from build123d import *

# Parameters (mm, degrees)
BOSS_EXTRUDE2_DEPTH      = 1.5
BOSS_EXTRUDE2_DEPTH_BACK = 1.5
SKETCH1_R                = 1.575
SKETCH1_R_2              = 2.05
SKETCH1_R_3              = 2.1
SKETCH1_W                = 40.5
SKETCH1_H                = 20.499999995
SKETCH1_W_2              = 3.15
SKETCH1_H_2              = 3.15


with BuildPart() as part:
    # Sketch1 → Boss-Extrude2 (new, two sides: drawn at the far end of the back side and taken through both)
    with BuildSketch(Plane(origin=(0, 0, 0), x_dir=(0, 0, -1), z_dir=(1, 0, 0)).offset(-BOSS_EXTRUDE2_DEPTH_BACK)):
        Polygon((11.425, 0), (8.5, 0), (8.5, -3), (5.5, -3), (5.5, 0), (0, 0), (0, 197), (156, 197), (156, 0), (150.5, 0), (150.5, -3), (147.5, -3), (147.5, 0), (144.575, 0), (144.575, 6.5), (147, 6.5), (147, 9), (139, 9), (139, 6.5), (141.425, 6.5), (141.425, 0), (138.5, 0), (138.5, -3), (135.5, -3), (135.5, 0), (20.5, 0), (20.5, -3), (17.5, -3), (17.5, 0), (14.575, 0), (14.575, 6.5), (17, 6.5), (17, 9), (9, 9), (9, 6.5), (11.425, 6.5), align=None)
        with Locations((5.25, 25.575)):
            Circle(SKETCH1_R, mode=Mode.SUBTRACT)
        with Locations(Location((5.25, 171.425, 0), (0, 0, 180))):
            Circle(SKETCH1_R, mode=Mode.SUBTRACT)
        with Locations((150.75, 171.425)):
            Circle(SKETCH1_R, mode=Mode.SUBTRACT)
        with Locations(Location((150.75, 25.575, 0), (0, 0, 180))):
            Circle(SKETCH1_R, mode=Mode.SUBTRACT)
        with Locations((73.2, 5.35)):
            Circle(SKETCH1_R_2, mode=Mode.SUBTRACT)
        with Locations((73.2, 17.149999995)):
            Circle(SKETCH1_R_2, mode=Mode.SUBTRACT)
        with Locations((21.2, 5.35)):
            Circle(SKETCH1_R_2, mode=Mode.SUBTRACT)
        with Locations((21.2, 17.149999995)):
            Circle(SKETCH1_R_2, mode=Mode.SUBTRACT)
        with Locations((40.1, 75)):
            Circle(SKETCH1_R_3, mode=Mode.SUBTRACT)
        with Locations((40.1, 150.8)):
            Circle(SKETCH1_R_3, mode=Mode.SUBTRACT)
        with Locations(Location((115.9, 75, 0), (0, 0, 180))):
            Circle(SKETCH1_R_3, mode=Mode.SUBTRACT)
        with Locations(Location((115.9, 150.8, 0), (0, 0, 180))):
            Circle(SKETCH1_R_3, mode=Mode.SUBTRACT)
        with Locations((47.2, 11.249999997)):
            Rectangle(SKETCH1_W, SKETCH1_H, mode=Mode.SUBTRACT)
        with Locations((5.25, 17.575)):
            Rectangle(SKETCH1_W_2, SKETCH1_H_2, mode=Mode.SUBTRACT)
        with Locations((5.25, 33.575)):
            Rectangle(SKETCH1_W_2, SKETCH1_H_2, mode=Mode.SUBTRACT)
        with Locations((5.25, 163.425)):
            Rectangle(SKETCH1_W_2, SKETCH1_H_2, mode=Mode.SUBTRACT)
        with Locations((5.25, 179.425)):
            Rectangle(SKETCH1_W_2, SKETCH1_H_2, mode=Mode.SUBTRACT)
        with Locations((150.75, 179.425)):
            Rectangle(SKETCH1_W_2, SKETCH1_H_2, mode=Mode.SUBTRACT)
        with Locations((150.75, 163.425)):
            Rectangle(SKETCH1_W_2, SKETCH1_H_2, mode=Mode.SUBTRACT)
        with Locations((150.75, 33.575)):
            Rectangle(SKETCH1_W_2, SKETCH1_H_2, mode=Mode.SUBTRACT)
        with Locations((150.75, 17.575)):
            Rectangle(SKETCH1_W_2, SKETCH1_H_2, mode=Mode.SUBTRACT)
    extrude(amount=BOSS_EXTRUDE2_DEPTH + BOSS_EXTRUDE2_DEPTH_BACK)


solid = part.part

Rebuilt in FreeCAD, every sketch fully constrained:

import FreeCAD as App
import Part
import Sketcher

V = App.Vector

doc = App.newDocument("Part")
body = doc.addObject("PartDesign::Body", "Body")

# Sketch on YZ plane
sketch1 = doc.addObject("Sketcher::SketchObject", "Sketch")
body.addObject(sketch1)
sketch1.AttachmentSupport = (doc.YZ_Plane, [""])
sketch1.MapMode = "FlatFace"
sketch1.addGeometry([
    Part.LineSegment(V(0, -8.5, 0), V(0, -11.425, 0)),  # 0
    Part.LineSegment(V(0, -11.425, 0), V(6.5, -11.425, 0)),  # 1
    Part.LineSegment(V(6.5, -11.425, 0), V(6.5, -9, 0)),  # 2
    Part.LineSegment(V(6.5, -9, 0), V(9, -9, 0)),  # 3
    Part.LineSegment(V(9, -9, 0), V(9, -17, 0)),  # 4
    Part.LineSegment(V(9, -17, 0), V(6.5, -17, 0)),  # 5
    Part.LineSegment(V(6.5, -17, 0), V(6.5, -14.575, 0)),  # 6
    Part.LineSegment(V(6.5, -14.575, 0), V(0, -14.575, 0)),  # 7
    Part.LineSegment(V(0, -14.575, 0), V(0, -17.5, 0)),  # 8
    Part.LineSegment(V(0, -17.5, 0), V(-3, -17.5, 0)),  # 9
    Part.LineSegment(V(-3, -17.5, 0), V(-3, -20.5, 0)),  # 10
    Part.LineSegment(V(-3, -20.5, 0), V(0, -20.5, 0)),  # 11
    Part.LineSegment(V(0, -20.5, 0), V(0, -135.5, 0)),  # 12
    Part.LineSegment(V(0, -135.5, 0), V(-3, -135.5, 0)),  # 13
    Part.LineSegment(V(-3, -135.5, 0), V(-3, -138.5, 0)),  # 14
    Part.LineSegment(V(-3, -138.5, 0), V(0, -138.5, 0)),  # 15
    Part.LineSegment(V(0, -138.5, 0), V(0, -141.425, 0)),  # 16
    Part.LineSegment(V(0, -141.425, 0), V(6.5, -141.425, 0)),  # 17
    Part.LineSegment(V(6.5, -141.425, 0), V(6.5, -139, 0)),  # 18
    Part.LineSegment(V(6.5, -139, 0), V(9, -139, 0)),  # 19
    Part.LineSegment(V(9, -139, 0), V(9, -147, 0)),  # 20
    Part.LineSegment(V(9, -147, 0), V(6.5, -147, 0)),  # 21
    Part.LineSegment(V(6.5, -147, 0), V(6.5, -144.575, 0)),  # 22
    Part.LineSegment(V(6.5, -144.575, 0), V(0, -144.575, 0)),  # 23
    Part.LineSegment(V(0, -144.575, 0), V(0, -147.5, 0)),  # 24
    Part.LineSegment(V(0, -147.5, 0), V(-3, -147.5, 0)),  # 25
    Part.LineSegment(V(-3, -147.5, 0), V(-3, -150.5, 0)),  # 26
    Part.LineSegment(V(-3, -150.5, 0), V(0, -150.5, 0)),  # 27
    Part.LineSegment(V(0, -150.5, 0), V(0, -156, 0)),  # 28
    Part.LineSegment(V(0, -156, 0), V(197, -156, 0)),  # 29
    Part.LineSegment(V(197, -156, 0), V(197, 0, 0)),  # 30
    Part.LineSegment(V(197, 0, 0), V(0, 0, 0)),  # 31
    Part.LineSegment(V(0, 0, 0), V(0, -5.5, 0)),  # 32
    Part.LineSegment(V(0, -5.5, 0), V(-3, -5.5, 0)),  # 33
    Part.LineSegment(V(-3, -5.5, 0), V(-3, -8.5, 0)),  # 34
    Part.LineSegment(V(-3, -8.5, 0), V(0, -8.5, 0)),  # 35
    Part.LineSegment(V(16, -149.175, 0), V(19.15, -149.175, 0)),  # 36
    Part.LineSegment(V(19.15, -149.175, 0), V(19.15, -152.325, 0)),  # 37
    Part.LineSegment(V(19.15, -152.325, 0), V(16, -152.325, 0)),  # 38
    Part.LineSegment(V(16, -152.325, 0), V(16, -149.175, 0)),  # 39
    Part.Circle(V(25.575, -150.75, 0), V(0, 0, 1), 1.575),  # 40
    Part.LineSegment(V(32, -149.175, 0), V(35.15, -149.175, 0)),  # 41
    Part.LineSegment(V(35.15, -149.175, 0), V(35.15, -152.325, 0)),  # 42
    Part.LineSegment(V(35.15, -152.325, 0), V(32, -152.325, 0)),  # 43
    Part.LineSegment(V(32, -152.325, 0), V(32, -149.175, 0)),  # 44
    Part.Circle(V(75, -115.9, 0), V(0, 0, 1), 2.1),  # 45
    Part.Circle(V(5.35, -73.2, 0), V(0, 0, 1), 2.05),  # 46
    Part.Circle(V(17.15, -73.2, 0), V(0, 0, 1), 2.05),  # 47
    Part.LineSegment(V(1, -26.95, 0), V(21.5, -26.95, 0)),  # 48
    Part.LineSegment(V(21.5, -26.95, 0), V(21.5, -67.45, 0)),  # 49
    Part.LineSegment(V(21.5, -67.45, 0), V(1, -67.45, 0)),  # 50
    Part.LineSegment(V(1, -67.45, 0), V(1, -26.95, 0)),  # 51
    Part.Circle(V(5.35, -21.2, 0), V(0, 0, 1), 2.05),  # 52
    Part.Circle(V(17.15, -21.2, 0), V(0, 0, 1), 2.05),  # 53
    Part.LineSegment(V(16, -3.675, 0), V(19.15, -3.675, 0)),  # 54
    Part.LineSegment(V(19.15, -3.675, 0), V(19.15, -6.825, 0)),  # 55
    Part.LineSegment(V(19.15, -6.825, 0), V(16, -6.825, 0)),  # 56
    Part.LineSegment(V(16, -6.825, 0), V(16, -3.675, 0)),  # 57
    Part.Circle(V(25.575, -5.25, 0), V(0, 0, 1), 1.575),  # 58
    Part.LineSegment(V(32, -3.675, 0), V(35.15, -3.675, 0)),  # 59
    Part.LineSegment(V(35.15, -3.675, 0), V(35.15, -6.825, 0)),  # 60
    Part.LineSegment(V(35.15, -6.825, 0), V(32, -6.825, 0)),  # 61
    Part.LineSegment(V(32, -6.825, 0), V(32, -3.675, 0)),  # 62
    Part.Circle(V(75, -40.1, 0), V(0, 0, 1), 2.1),  # 63
    Part.Circle(V(150.8, -115.9, 0), V(0, 0, 1), 2.1),  # 64
    Part.LineSegment(V(161.85, -149.175, 0), V(165, -149.175, 0)),  # 65
    Part.LineSegment(V(165, -149.175, 0), V(165, -152.325, 0)),  # 66
    Part.LineSegment(V(165, -152.325, 0), V(161.85, -152.325, 0)),  # 67
    Part.LineSegment(V(161.85, -152.325, 0), V(161.85, -149.175, 0)),  # 68
    Part.Circle(V(171.425, -150.75, 0), V(0, 0, 1), 1.575),  # 69
    Part.LineSegment(V(177.85, -149.175, 0), V(181, -149.175, 0)),  # 70
    Part.LineSegment(V(181, -149.175, 0), V(181, -152.325, 0)),  # 71
    Part.LineSegment(V(181, -152.325, 0), V(177.85, -152.325, 0)),  # 72
    Part.LineSegment(V(177.85, -152.325, 0), V(177.85, -149.175, 0)),  # 73
    Part.Circle(V(150.8, -40.1, 0), V(0, 0, 1), 2.1),  # 74
    Part.LineSegment(V(161.85, -3.675, 0), V(165, -3.675, 0)),  # 75
    Part.LineSegment(V(165, -3.675, 0), V(165, -6.825, 0)),  # 76
    Part.LineSegment(V(165, -6.825, 0), V(161.85, -6.825, 0)),  # 77
    Part.LineSegment(V(161.85, -6.825, 0), V(161.85, -3.675, 0)),  # 78
    Part.Circle(V(171.425, -5.25, 0), V(0, 0, 1), 1.575),  # 79
    Part.LineSegment(V(177.85, -3.675, 0), V(181, -3.675, 0)),  # 80
    Part.LineSegment(V(181, -3.675, 0), V(181, -6.825, 0)),  # 81
    Part.LineSegment(V(181, -6.825, 0), V(177.85, -6.825, 0)),  # 82
    Part.LineSegment(V(177.85, -6.825, 0), V(177.85, -3.675, 0)),  # 83
], False)
sketch1.addConstraint([
    Sketcher.Constraint("Coincident", 0, 2, 1, 1),
    Sketcher.Constraint("Coincident", 1, 2, 2, 1),
    Sketcher.Constraint("Coincident", 2, 2, 3, 1),
    Sketcher.Constraint("Coincident", 3, 2, 4, 1),
    Sketcher.Constraint("Coincident", 4, 2, 5, 1),
    Sketcher.Constraint("Coincident", 5, 2, 6, 1),
    Sketcher.Constraint("Coincident", 6, 2, 7, 1),
    Sketcher.Constraint("Coincident", 7, 2, 8, 1),
    Sketcher.Constraint("Coincident", 8, 2, 9, 1),
    Sketcher.Constraint("Coincident", 9, 2, 10, 1),
    Sketcher.Constraint("Coincident", 10, 2, 11, 1),
    Sketcher.Constraint("Coincident", 11, 2, 12, 1),
    Sketcher.Constraint("Coincident", 12, 2, 13, 1),
    Sketcher.Constraint("Coincident", 13, 2, 14, 1),
    Sketcher.Constraint("Coincident", 14, 2, 15, 1),
    Sketcher.Constraint("Coincident", 15, 2, 16, 1),
    Sketcher.Constraint("Coincident", 16, 2, 17, 1),
    Sketcher.Constraint("Coincident", 17, 2, 18, 1),
    Sketcher.Constraint("Coincident", 18, 2, 19, 1),
    Sketcher.Constraint("Coincident", 19, 2, 20, 1),
    Sketcher.Constraint("Coincident", 20, 2, 21, 1),
    Sketcher.Constraint("Coincident", 21, 2, 22, 1),
    Sketcher.Constraint("Coincident", 22, 2, 23, 1),
    Sketcher.Constraint("Coincident", 23, 2, 24, 1),
    Sketcher.Constraint("Coincident", 24, 2, 25, 1),
    Sketcher.Constraint("Coincident", 25, 2, 26, 1),
    Sketcher.Constraint("Coincident", 26, 2, 27, 1),
    Sketcher.Constraint("Coincident", 27, 2, 28, 1),
    Sketcher.Constraint("Coincident", 28, 2, 29, 1),
    Sketcher.Constraint("Coincident", 29, 2, 30, 1),
    Sketcher.Constraint("Coincident", 30, 2, 31, 1),
    Sketcher.Constraint("Coincident", 31, 2, 32, 1),
    Sketcher.Constraint("Coincident", 32, 2, 33, 1),
    Sketcher.Constraint("Coincident", 33, 2, 34, 1),
    Sketcher.Constraint("Coincident", 34, 2, 35, 1),
    Sketcher.Constraint("Coincident", 35, 2, 0, 1),
    Sketcher.Constraint("Coincident", 36, 2, 37, 1),
    Sketcher.Constraint("Coincident", 37, 2, 38, 1),
    Sketcher.Constraint("Coincident", 38, 2, 39, 1),
    Sketcher.Constraint("Coincident", 39, 2, 36, 1),
    Sketcher.Constraint("Coincident", 41, 2, 42, 1),
    Sketcher.Constraint("Coincident", 42, 2, 43, 1),
    Sketcher.Constraint("Coincident", 43, 2, 44, 1),
    Sketcher.Constraint("Coincident", 44, 2, 41, 1),
    Sketcher.Constraint("Coincident", 48, 2, 49, 1),
    Sketcher.Constraint("Coincident", 49, 2, 50, 1),
    Sketcher.Constraint("Coincident", 50, 2, 51, 1),
    Sketcher.Constraint("Coincident", 51, 2, 48, 1),
    Sketcher.Constraint("Coincident", 54, 2, 55, 1),
    Sketcher.Constraint("Coincident", 55, 2, 56, 1),
    Sketcher.Constraint("Coincident", 56, 2, 57, 1),
    Sketcher.Constraint("Coincident", 57, 2, 54, 1),
    Sketcher.Constraint("Coincident", 59, 2, 60, 1),
    Sketcher.Constraint("Coincident", 60, 2, 61, 1),
    Sketcher.Constraint("Coincident", 61, 2, 62, 1),
    Sketcher.Constraint("Coincident", 62, 2, 59, 1),
    Sketcher.Constraint("Coincident", 65, 2, 66, 1),
    Sketcher.Constraint("Coincident", 66, 2, 67, 1),
    Sketcher.Constraint("Coincident", 67, 2, 68, 1),
    Sketcher.Constraint("Coincident", 68, 2, 65, 1),
    Sketcher.Constraint("Coincident", 70, 2, 71, 1),
    Sketcher.Constraint("Coincident", 71, 2, 72, 1),
    Sketcher.Constraint("Coincident", 72, 2, 73, 1),
    Sketcher.Constraint("Coincident", 73, 2, 70, 1),
    Sketcher.Constraint("Coincident", 75, 2, 76, 1),
    Sketcher.Constraint("Coincident", 76, 2, 77, 1),
    Sketcher.Constraint("Coincident", 77, 2, 78, 1),
    Sketcher.Constraint("Coincident", 78, 2, 75, 1),
    Sketcher.Constraint("Coincident", 80, 2, 81, 1),
    Sketcher.Constraint("Coincident", 81, 2, 82, 1),
    Sketcher.Constraint("Coincident", 82, 2, 83, 1),
    Sketcher.Constraint("Coincident", 83, 2, 80, 1),
    Sketcher.Constraint("Vertical", 0),
    Sketcher.Constraint("Horizontal", 1),
    Sketcher.Constraint("Vertical", 2),
    Sketcher.Constraint("Horizontal", 3),
    Sketcher.Constraint("Vertical", 4),
    Sketcher.Constraint("Horizontal", 5),
    Sketcher.Constraint("Vertical", 6),
    Sketcher.Constraint("Horizontal", 7),
    Sketcher.Constraint("Vertical", 8),
    Sketcher.Constraint("Horizontal", 9),
    Sketcher.Constraint("Vertical", 10),
    Sketcher.Constraint("Horizontal", 11),
    Sketcher.Constraint("Vertical", 12),
    Sketcher.Constraint("Horizontal", 13),
    Sketcher.Constraint("Vertical", 14),
    Sketcher.Constraint("Horizontal", 15),
    Sketcher.Constraint("Vertical", 16),
    Sketcher.Constraint("Horizontal", 17),
    Sketcher.Constraint("Vertical", 18),
    Sketcher.Constraint("Horizontal", 19),
    Sketcher.Constraint("Vertical", 20),
    Sketcher.Constraint("Horizontal", 21),
    Sketcher.Constraint("Vertical", 22),
    Sketcher.Constraint("Horizontal", 23),
    Sketcher.Constraint("Vertical", 24),
    Sketcher.Constraint("Horizontal", 25),
    Sketcher.Constraint("Vertical", 26),
    Sketcher.Constraint("Horizontal", 27),
    Sketcher.Constraint("Vertical", 28),
    Sketcher.Constraint("Horizontal", 29),
    Sketcher.Constraint("Vertical", 30),
    Sketcher.Constraint("Horizontal", 31),
    Sketcher.Constraint("Vertical", 32),
    Sketcher.Constraint("Horizontal", 33),
    Sketcher.Constraint("Vertical", 34),
    Sketcher.Constraint("Horizontal", 35),
    Sketcher.Constraint("Horizontal", 36),
    Sketcher.Constraint("Vertical", 37),
    Sketcher.Constraint("Horizontal", 38),
    Sketcher.Constraint("Vertical", 39),
    Sketcher.Constraint("Horizontal", 41),
    Sketcher.Constraint("Vertical", 42),
    Sketcher.Constraint("Horizontal", 43),
    Sketcher.Constraint("Vertical", 44),
    Sketcher.Constraint("Horizontal", 48),
    Sketcher.Constraint("Vertical", 49),
    Sketcher.Constraint("Horizontal", 50),
    Sketcher.Constraint("Vertical", 51),
    Sketcher.Constraint("Horizontal", 54),
    Sketcher.Constraint("Vertical", 55),
    Sketcher.Constraint("Horizontal", 56),
    Sketcher.Constraint("Vertical", 57),
    Sketcher.Constraint("Horizontal", 59),
    Sketcher.Constraint("Vertical", 60),
    Sketcher.Constraint("Horizontal", 61),
    Sketcher.Constraint("Vertical", 62),
    Sketcher.Constraint("Horizontal", 65),
    Sketcher.Constraint("Vertical", 66),
    Sketcher.Constraint("Horizontal", 67),
    Sketcher.Constraint("Vertical", 68),
    Sketcher.Constraint("Horizontal", 70),
    Sketcher.Constraint("Vertical", 71),
    Sketcher.Constraint("Horizontal", 72),
    Sketcher.Constraint("Vertical", 73),
    Sketcher.Constraint("Horizontal", 75),
    Sketcher.Constraint("Vertical", 76),
    Sketcher.Constraint("Horizontal", 77),
    Sketcher.Constraint("Vertical", 78),
    Sketcher.Constraint("Horizontal", 80),
    Sketcher.Constraint("Vertical", 81),
    Sketcher.Constraint("Horizontal", 82),
    Sketcher.Constraint("Vertical", 83),
    Sketcher.Constraint("Coincident", 31, 2, -1, 1),
    Sketcher.Constraint("Equal", 46, 47),
    Sketcher.Constraint("Equal", 47, 52),
    Sketcher.Constraint("Equal", 52, 53),
    Sketcher.Constraint("Equal", 40, 58),
    Sketcher.Constraint("Equal", 45, 63),
    Sketcher.Constraint("Equal", 63, 64),
    Sketcher.Constraint("Equal", 58, 69),
    Sketcher.Constraint("Equal", 64, 74),
    Sketcher.Constraint("Equal", 69, 79),
    Sketcher.Constraint("PointOnObject", 0, 2, -2),
    Sketcher.Constraint("PointOnObject", 7, 2, -2),
    Sketcher.Constraint("PointOnObject", 11, 2, -2),
    Sketcher.Constraint("PointOnObject", 15, 2, -2),
    Sketcher.Constraint("PointOnObject", 23, 2, -2),
    Sketcher.Constraint("PointOnObject", 27, 2, -2),
    Sketcher.Constraint("Horizontal", 46, 3, 47, 3),
    Sketcher.Constraint("Horizontal", 52, 3, 53, 3),
    Sketcher.Constraint("Horizontal", 45, 3, 64, 3),
    Sketcher.Constraint("Horizontal", 40, 3, 69, 3),
    Sketcher.Constraint("Horizontal", 63, 3, 74, 3),
    Sketcher.Constraint("Horizontal", 58, 3, 79, 3),
    Sketcher.Constraint("Horizontal", 39, 2, 41, 2),
    Sketcher.Constraint("Horizontal", 38, 2, 42, 2),
    Sketcher.Constraint("Horizontal", 57, 2, 59, 2),
    Sketcher.Constraint("Horizontal", 56, 2, 60, 2),
    Sketcher.Constraint("Horizontal", 44, 2, 65, 2),
    Sketcher.Constraint("Horizontal", 43, 2, 66, 2),
    Sketcher.Constraint("Horizontal", 68, 2, 70, 2),
    Sketcher.Constraint("Horizontal", 67, 2, 71, 2),
    Sketcher.Constraint("Horizontal", 62, 2, 75, 2),
    Sketcher.Constraint("Horizontal", 61, 2, 76, 2),
    Sketcher.Constraint("Horizontal", 78, 2, 80, 2),
    Sketcher.Constraint("Horizontal", 77, 2, 81, 2),
    Sketcher.Constraint("Vertical", 46, 3, 52, 3),
    Sketcher.Constraint("Vertical", 47, 3, 53, 3),
    Sketcher.Constraint("Vertical", 40, 3, 58, 3),
    Sketcher.Constraint("Vertical", 45, 3, 63, 3),
    Sketcher.Constraint("Vertical", 64, 3, 74, 3),
    Sketcher.Constraint("Vertical", 69, 3, 79, 3),
    Sketcher.Constraint("Vertical", 2, 2, 5, 2),
    Sketcher.Constraint("Vertical", 10, 2, 13, 2),
    Sketcher.Constraint("Vertical", 6, 2, 17, 2),
    Sketcher.Constraint("Vertical", 4, 2, 19, 2),
    Sketcher.Constraint("Vertical", 18, 2, 21, 2),
    Sketcher.Constraint("Vertical", 14, 2, 25, 2),
    Sketcher.Constraint("Vertical", 26, 2, 33, 2),
    Sketcher.Constraint("Vertical", 37, 2, 54, 2),
    Sketcher.Constraint("Vertical", 39, 2, 56, 2),
    Sketcher.Constraint("Vertical", 42, 2, 59, 2),
    Sketcher.Constraint("Vertical", 44, 2, 61, 2),
    Sketcher.Constraint("Vertical", 66, 2, 75, 2),
    Sketcher.Constraint("Vertical", 68, 2, 77, 2),
    Sketcher.Constraint("Vertical", 71, 2, 80, 2),
    Sketcher.Constraint("Vertical", 73, 2, 82, 2),
    Sketcher.Constraint("Equal", 38, 41),
    Sketcher.Constraint("Equal", 61, 65),
    Sketcher.Constraint("Equal", 67, 70),
    Sketcher.Constraint("Equal", 2, 6),
    Sketcher.Constraint("Equal", 0, 8),
    Sketcher.Constraint("Equal", 35, 10),
    Sketcher.Constraint("Equal", 10, 14),
    Sketcher.Constraint("Equal", 8, 16),
    Sketcher.Constraint("Equal", 6, 18),
    Sketcher.Constraint("Equal", 4, 20),
    Sketcher.Constraint("Equal", 18, 22),
    Sketcher.Constraint("Equal", 16, 24),
    Sketcher.Constraint("Equal", 14, 26),
    Sketcher.Constraint("Equal", 28, 32),
    Sketcher.Constraint("Equal", 26, 34),
    Sketcher.Constraint("Equal", 82, 37),
    Sketcher.Constraint("Equal", 44, 55),
    Sketcher.Constraint("Diameter", 45, 4.2),
    Sketcher.Constraint("Diameter", 46, 4.1),
    Sketcher.Constraint("Diameter", 40, 3.15),
    Sketcher.Constraint("DistanceX", 9, 2, 9, 1, 3.0),
    Sketcher.Constraint("DistanceX", 29, 1, 29, 2, 197.0),
    Sketcher.Constraint("DistanceY", 4, 2, 4, 1, 8.0),
    Sketcher.Constraint("DistanceY", 12, 2, 12, 1, 115.0),
    Sketcher.Constraint("DistanceY", 30, 1, 30, 2, 156.0),
    Sketcher.Constraint("DistanceX", 1, 1, 1, 2, 6.5),
    Sketcher.Constraint("DistanceX", 3, 1, 3, 2, 2.5),
    Sketcher.Constraint("DistanceX", 48, 1, 48, 2, 20.5),
    Sketcher.Constraint("DistanceY", 28, 2, 28, 1, 5.5),
    Sketcher.Constraint("DistanceY", 49, 2, 49, 1, 40.5),
    Sketcher.Constraint("DistanceX", -1, 1, 45, 3, 75.0),
    Sketcher.Constraint("DistanceX", -1, 1, 38, 2, 16.0),
    Sketcher.Constraint("DistanceX", -1, 1, 43, 2, 32.0),
    Sketcher.Constraint("DistanceX", -1, 1, 50, 2, 1.0),
    Sketcher.Constraint("DistanceX", -1, 1, 65, 2, 165.0),
    Sketcher.Constraint("DistanceX", -1, 1, 70, 2, 181.0),
    Sketcher.Constraint("DistanceX", 36, 1, 36, 2, 3.15),
    Sketcher.Constraint("DistanceY", 45, 3, -1, 1, 115.9),
    Sketcher.Constraint("DistanceY", 46, 3, -1, 1, 73.2),
    Sketcher.Constraint("DistanceY", 52, 3, -1, 1, 21.2),
    Sketcher.Constraint("DistanceY", 63, 3, -1, 1, 40.1),
    Sketcher.Constraint("DistanceX", -1, 1, 64, 3, 150.8),
    Sketcher.Constraint("DistanceY", 0, 2, 0, 1, 2.925),
    Sketcher.Constraint("DistanceY", 40, 3, -1, 1, 150.75),
    Sketcher.Constraint("DistanceX", -1, 1, 46, 3, 5.35),
    Sketcher.Constraint("DistanceX", -1, 1, 47, 3, 17.15),
    Sketcher.Constraint("DistanceY", 58, 3, -1, 1, 5.25),
    Sketcher.Constraint("DistanceY", 48, 2, -1, 1, 26.95),
    Sketcher.Constraint("DistanceX", -1, 1, 40, 3, 25.575),
    Sketcher.Constraint("DistanceX", -1, 1, 69, 3, 171.425),
    Sketcher.Constraint("DistanceY", 36, 2, -1, 1, 149.175),
    Sketcher.Constraint("DistanceY", 54, 2, -1, 1, 3.675),
])
pad1 = doc.addObject("PartDesign::Pad", "Pad")
body.addObject(pad1)
pad1.Profile = sketch1
pad1.Type = "TwoLengths"
pad1.Length = 1.5
pad1.Length2 = 1.5

doc.recompute()
